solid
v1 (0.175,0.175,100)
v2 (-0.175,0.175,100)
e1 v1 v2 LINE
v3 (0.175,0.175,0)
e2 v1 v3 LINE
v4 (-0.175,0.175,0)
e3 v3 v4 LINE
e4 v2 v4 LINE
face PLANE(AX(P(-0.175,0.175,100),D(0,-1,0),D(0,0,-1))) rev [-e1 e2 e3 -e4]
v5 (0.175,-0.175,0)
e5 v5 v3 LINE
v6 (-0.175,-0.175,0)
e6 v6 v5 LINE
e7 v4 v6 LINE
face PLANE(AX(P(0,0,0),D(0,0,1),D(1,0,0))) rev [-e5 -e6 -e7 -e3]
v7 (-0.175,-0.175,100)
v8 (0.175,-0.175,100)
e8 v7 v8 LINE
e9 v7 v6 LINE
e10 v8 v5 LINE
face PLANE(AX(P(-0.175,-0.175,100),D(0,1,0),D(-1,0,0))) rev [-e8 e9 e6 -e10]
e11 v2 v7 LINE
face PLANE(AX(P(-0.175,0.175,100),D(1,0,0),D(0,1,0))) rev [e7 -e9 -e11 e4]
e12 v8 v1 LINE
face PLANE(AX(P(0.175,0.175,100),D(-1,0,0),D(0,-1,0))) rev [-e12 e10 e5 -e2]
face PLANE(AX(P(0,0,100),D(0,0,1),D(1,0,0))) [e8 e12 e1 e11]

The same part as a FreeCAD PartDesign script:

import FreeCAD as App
import Part
import Sketcher
from FreeCAD import Vector

doc = App.newDocument("Part")
body = doc.addObject("PartDesign::Body", "Body")

# Sketch on XY plane
sketch1 = body.newObject("Sketcher::SketchObject", "Sketch")
sketch1.AttachmentSupport = (doc.getObject("XY_Plane"), [""])
sketch1.MapMode = "FlatFace"
sketch1.addGeometry([
    Part.LineSegment(Vector(-0.17, 0.17, 0), Vector(-0.17, -0.17, 0)),
    Part.LineSegment(Vector(-0.17, -0.17, 0), Vector(0.17, -0.17, 0)),
    Part.LineSegment(Vector(0.17, -0.17, 0), Vector(0.17, 0.17, 0)),
    Part.LineSegment(Vector(0.17, 0.17, 0), Vector(-0.17, 0.17, 0)),
], False)
sketch1.addConstraint([
    Sketcher.Constraint("Coincident", 0, 2, 1, 1),
    Sketcher.Constraint("Coincident", 1, 2, 2, 1),
    Sketcher.Constraint("Coincident", 2, 2, 3, 1),
    Sketcher.Constraint("Coincident", 3, 2, 0, 1),
    Sketcher.Constraint("Vertical", 0),
    Sketcher.Constraint("Horizontal", 1),
    Sketcher.Constraint("Vertical", 2),
    Sketcher.Constraint("Horizontal", 3),
    Sketcher.Constraint("Symmetric", 0, 2, 2, 2, -1, 1),
    Sketcher.Constraint("Equal", 3, 0),
    Sketcher.Constraint("DistanceX", 1, 1, 1, 2, 0.35),
])
pad1 = body.newObject("PartDesign::Pad", "Pad")
pad1.Profile = sketch1
pad1.Length = 100

doc.recompute()
